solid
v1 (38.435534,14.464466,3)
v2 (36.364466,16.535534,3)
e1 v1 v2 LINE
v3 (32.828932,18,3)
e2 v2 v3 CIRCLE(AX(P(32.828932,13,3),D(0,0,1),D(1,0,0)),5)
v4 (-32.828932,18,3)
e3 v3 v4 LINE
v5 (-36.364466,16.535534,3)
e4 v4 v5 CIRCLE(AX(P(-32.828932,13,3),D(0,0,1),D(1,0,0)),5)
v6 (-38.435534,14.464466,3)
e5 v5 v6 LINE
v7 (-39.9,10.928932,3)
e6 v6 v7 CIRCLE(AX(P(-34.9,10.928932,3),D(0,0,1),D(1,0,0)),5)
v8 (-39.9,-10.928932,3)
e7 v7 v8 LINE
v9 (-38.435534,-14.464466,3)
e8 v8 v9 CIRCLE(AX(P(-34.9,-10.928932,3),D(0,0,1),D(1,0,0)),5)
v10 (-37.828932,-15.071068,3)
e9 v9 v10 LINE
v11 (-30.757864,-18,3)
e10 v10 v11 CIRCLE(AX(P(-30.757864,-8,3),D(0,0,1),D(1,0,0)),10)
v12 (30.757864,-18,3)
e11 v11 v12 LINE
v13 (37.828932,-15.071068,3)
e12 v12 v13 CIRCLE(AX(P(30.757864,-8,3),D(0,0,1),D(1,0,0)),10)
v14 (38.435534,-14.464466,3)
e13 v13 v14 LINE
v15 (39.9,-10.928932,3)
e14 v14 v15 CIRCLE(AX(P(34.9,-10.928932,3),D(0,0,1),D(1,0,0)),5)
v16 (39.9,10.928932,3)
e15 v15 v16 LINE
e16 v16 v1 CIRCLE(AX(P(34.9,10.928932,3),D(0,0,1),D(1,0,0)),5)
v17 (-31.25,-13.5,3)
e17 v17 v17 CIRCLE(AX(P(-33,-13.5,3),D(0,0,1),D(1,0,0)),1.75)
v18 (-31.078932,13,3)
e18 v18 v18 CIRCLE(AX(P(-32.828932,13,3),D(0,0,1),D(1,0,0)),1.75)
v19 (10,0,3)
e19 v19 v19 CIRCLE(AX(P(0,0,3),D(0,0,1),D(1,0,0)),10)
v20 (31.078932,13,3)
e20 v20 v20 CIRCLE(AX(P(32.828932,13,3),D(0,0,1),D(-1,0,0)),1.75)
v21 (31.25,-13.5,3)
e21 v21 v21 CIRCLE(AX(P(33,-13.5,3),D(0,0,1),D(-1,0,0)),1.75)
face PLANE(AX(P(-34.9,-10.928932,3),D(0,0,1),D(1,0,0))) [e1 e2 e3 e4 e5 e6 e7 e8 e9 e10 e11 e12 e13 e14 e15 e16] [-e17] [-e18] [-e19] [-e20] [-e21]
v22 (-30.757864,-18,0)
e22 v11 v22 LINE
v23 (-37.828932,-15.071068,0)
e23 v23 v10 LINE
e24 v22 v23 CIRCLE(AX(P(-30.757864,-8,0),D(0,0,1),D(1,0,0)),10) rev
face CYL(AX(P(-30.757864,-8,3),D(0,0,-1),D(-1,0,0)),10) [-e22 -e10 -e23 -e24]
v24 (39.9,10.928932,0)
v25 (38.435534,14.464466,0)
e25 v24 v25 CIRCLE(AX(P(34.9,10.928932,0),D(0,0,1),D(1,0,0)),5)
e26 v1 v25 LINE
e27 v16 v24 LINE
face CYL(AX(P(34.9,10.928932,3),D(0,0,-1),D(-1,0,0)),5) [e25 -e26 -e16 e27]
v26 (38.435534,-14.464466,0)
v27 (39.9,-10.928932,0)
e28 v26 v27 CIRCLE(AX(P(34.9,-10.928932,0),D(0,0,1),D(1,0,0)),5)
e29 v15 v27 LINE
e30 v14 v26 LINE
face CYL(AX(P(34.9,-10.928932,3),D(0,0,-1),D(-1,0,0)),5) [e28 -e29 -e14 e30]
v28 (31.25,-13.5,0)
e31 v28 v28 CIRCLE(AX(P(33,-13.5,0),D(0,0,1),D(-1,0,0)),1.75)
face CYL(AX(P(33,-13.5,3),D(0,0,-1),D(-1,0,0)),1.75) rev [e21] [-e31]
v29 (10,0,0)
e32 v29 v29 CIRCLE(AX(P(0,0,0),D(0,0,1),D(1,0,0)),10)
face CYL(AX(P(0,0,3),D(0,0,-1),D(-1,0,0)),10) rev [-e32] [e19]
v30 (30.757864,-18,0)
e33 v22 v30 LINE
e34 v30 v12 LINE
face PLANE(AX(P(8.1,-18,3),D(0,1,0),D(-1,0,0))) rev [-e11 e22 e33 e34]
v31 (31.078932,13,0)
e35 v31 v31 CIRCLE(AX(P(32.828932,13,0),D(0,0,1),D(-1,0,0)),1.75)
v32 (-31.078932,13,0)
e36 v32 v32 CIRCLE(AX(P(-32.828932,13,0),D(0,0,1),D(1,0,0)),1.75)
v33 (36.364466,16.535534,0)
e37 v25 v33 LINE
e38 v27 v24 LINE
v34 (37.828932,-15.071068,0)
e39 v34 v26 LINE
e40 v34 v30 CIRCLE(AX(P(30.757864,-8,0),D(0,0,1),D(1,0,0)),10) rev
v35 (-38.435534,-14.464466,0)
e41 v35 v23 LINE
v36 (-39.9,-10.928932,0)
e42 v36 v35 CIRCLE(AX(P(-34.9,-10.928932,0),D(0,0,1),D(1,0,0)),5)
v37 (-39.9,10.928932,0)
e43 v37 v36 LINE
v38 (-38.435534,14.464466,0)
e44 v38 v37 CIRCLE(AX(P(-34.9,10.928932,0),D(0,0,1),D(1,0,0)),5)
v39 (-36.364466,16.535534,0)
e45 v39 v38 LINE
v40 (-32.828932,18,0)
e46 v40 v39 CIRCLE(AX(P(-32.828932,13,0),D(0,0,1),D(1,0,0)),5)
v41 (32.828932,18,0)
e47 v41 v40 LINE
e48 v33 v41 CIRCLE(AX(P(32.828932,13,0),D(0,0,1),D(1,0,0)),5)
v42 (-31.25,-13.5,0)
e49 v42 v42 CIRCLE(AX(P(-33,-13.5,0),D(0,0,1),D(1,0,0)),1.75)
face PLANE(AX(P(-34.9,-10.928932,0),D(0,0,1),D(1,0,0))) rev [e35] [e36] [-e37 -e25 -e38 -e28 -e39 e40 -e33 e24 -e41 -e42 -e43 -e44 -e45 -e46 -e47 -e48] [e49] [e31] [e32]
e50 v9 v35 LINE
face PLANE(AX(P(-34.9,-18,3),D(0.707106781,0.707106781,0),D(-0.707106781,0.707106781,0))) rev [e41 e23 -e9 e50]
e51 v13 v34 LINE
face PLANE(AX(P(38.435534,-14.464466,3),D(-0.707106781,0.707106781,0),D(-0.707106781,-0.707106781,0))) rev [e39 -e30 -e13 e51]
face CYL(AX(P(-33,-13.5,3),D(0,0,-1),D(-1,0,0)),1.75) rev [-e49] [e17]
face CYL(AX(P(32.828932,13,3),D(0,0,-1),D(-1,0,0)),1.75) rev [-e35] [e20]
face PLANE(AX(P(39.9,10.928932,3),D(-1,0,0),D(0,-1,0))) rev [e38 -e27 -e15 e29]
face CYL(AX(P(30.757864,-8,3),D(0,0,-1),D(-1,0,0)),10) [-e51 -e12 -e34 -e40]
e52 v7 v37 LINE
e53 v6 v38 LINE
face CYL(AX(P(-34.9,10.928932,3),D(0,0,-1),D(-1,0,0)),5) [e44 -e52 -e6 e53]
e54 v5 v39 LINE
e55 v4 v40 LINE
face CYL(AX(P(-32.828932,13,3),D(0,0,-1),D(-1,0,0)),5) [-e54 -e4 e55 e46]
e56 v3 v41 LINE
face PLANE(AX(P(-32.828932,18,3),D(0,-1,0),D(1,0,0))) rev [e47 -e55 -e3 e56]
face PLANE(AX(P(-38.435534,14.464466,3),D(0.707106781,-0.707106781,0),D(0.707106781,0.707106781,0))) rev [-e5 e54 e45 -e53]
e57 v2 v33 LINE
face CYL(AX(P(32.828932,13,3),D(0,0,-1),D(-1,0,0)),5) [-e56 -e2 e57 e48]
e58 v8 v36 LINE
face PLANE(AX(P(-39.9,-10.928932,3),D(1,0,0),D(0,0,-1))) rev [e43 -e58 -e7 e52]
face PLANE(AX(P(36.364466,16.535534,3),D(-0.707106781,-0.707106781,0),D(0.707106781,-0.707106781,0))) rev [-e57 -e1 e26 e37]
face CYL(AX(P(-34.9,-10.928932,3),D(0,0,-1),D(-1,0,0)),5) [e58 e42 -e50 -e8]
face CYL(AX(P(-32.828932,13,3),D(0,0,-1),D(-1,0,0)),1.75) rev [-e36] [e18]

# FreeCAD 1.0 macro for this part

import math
import FreeCAD as App
import Part
import Sketcher
from FreeCAD import Vector


def edges_at(feature, points):
    """Names of the edges that pass closest to the given points."""
    edges = feature.Shape.Edges
    near = lambda p: min(range(len(edges)), key=lambda i: edges[i].distToShape(Part.Vertex(*p))[0])
    return sorted({f"Edge{near(p) + 1}" for p in points})

doc = App.newDocument("Part")
body = doc.addObject("PartDesign::Body", "Body")

# Sketch on XY plane
sketch1 = body.newObject("Sketcher::SketchObject", "Sketch")
sketch1.AttachmentSupport = (doc.getObject("XY_Plane"), [""])
sketch1.MapMode = "FlatFace"
sketch1.addGeometry(Part.LineSegment(Vector(-39.9, 10.9, 0), Vector(-39.9, -10.9, 0)), False)
sketch1.addGeometry(Part.ArcOfCircle(Part.Circle(Vector(-34.9, -10.9, 0), Vector(0, 0, 1), 5), math.radians(180), math.radians(225)), False)
sketch1.addGeometry(Part.LineSegment(Vector(-38.4, -14.5, 0), Vector(-34.9, -18, 0)), False)
sketch1.addGeometry(Part.LineSegment(Vector(-34.9, -18, 0), Vector(34.9, -18, 0)), False)
sketch1.addGeometry(Part.LineSegment(Vector(34.9, -18, 0), Vector(38.4, -14.5, 0)), False)
sketch1.addGeometry(Part.ArcOfCircle(Part.Circle(Vector(34.9, -10.9, 0), Vector(0, 0, 1), 5), math.radians(-45), math.radians(0)), False)
sketch1.addGeometry(Part.LineSegment(Vector(39.9, -10.9, 0), Vector(39.9, 10.9, 0)), False)
sketch1.addGeometry(Part.ArcOfCircle(Part.Circle(Vector(34.9, 10.9, 0), Vector(0, 0, 1), 5), math.radians(0), math.radians(45)), False)
sketch1.addGeometry(Part.LineSegment(Vector(38.4, 14.5, 0), Vector(36.4, 16.5, 0)), False)
sketch1.addGeometry(Part.ArcOfCircle(Part.Circle(Vector(32.8, 13, 0), Vector(0, 0, 1), 5), math.radians(45), math.radians(90)), False)
sketch1.addGeometry(Part.LineSegment(Vector(32.8, 18, 0), Vector(-32.8, 18, 0)), False)
sketch1.addGeometry(Part.ArcOfCircle(Part.Circle(Vector(-32.8, 13, 0), Vector(0, 0, 1), 5), math.radians(90), math.radians(135)), False)
sketch1.addGeometry(Part.LineSegment(Vector(-36.4, 16.5, 0), Vector(-38.4, 14.5, 0)), False)
sketch1.addGeometry(Part.ArcOfCircle(Part.Circle(Vector(-34.9, 10.9, 0), Vector(0, 0, 1), 5), math.radians(135), math.radians(180)), False)
sketch1.addGeometry(Part.Circle(Vector(33, -13.5, 0), Vector(0, 0, 1), 1.8), False)
sketch1.addGeometry(Part.Circle(Vector(-33, -13.5, 0), Vector(0, 0, 1), 1.8), False)
sketch1.addGeometry(Part.Circle(Vector(32.8, 13, 0), Vector(0, 0, 1), 1.8), False)
sketch1.addGeometry(Part.Circle(Vector(0, 0, 0), Vector(0, 0, 1), 10), False)
sketch1.addGeometry(Part.Circle(Vector(-32.8, 13, 0), Vector(0, 0, 1), 1.8), False)
sketch1.addConstraint(Sketcher.Constraint("Tangent", 0, 2, 1, 1))
sketch1.addConstraint(Sketcher.Constraint("Tangent", 1, 2, 2, 1))
sketch1.addConstraint(Sketcher.Constraint("Coincident", 2, 2, 3, 1))
sketch1.addConstraint(Sketcher.Constraint("Coincident", 3, 2, 4, 1))
sketch1.addConstraint(Sketcher.Constraint("Tangent", 4, 2, 5, 1))
sketch1.addConstraint(Sketcher.Constraint("Tangent", 5, 2, 6, 1))
sketch1.addConstraint(Sketcher.Constraint("Tangent", 6, 2, 7, 1))
sketch1.addConstraint(Sketcher.Constraint("Tangent", 7, 2, 8, 1))
sketch1.addConstraint(Sketcher.Constraint("Tangent", 8, 2, 9, 1))
sketch1.addConstraint(Sketcher.Constraint("Tangent", 9, 2, 10, 1))
sketch1.addConstraint(Sketcher.Constraint("Tangent", 10, 2, 11, 1))
sketch1.addConstraint(Sketcher.Constraint("Tangent", 11, 2, 12, 1))
sketch1.addConstraint(Sketcher.Constraint("Tangent", 12, 2, 13, 1))
sketch1.addConstraint(Sketcher.Constraint("Tangent", 13, 2, 0, 1))
sketch1.addConstraint(Sketcher.Constraint("Vertical", 0))
sketch1.addConstraint(Sketcher.Constraint("Horizontal", 3))
sketch1.addConstraint(Sketcher.Constraint("Vertical", 6))
sketch1.addConstraint(Sketcher.Constraint("Horizontal", 10))
sketch1.addConstraint(Sketcher.Constraint("Coincident", 17, 3, -1, 1))
sketch1.addConstraint(Sketcher.Constraint("Coincident", 16, 3, 9, 3))
sketch1.addConstraint(Sketcher.Constraint("Coincident", 18, 3, 11, 3))
sketch1.addConstraint(Sketcher.Constraint("Equal", 1, 5))
sketch1.addConstraint(Sketcher.Constraint("Equal", 5, 7))
sketch1.addConstraint(Sketcher.Constraint("Equal", 7, 9))
sketch1.addConstraint(Sketcher.Constraint("Equal", 9, 11))
sketch1.addConstraint(Sketcher.Constraint("Equal", 11, 13))
sketch1.addConstraint(Sketcher.Constraint("Equal", 14, 15))
sketch1.addConstraint(Sketcher.Constraint("Equal", 15, 16))
sketch1.addConstraint(Sketcher.Constraint("Equal", 16, 18))
sketch1.addConstraint(Sketcher.Constraint("Symmetric", 1, 3, 7, 3, -1, 1))
sketch1.addConstraint(Sketcher.Constraint("Symmetric", 4, 2, 12, 2, -1, 1))
sketch1.addConstraint(Sketcher.Constraint("Symmetric", 14, 3, 15, 3, -2))
sketch1.addConstraint(Sketcher.Constraint("Symmetric", 1, 2, 4, 2, -2))
sketch1.addConstraint(Sketcher.Constraint("Perpendicular", 2, 4))
sketch1.addConstraint(Sketcher.Constraint("Perpendicular", 4, 8))
sketch1.addConstraint(Sketcher.Constraint("Vertical", 13, 3, 2, 2))
sketch1.addConstraint(Sketcher.Constraint("Diameter", 17, 20.0))
sketch1.addConstraint(Sketcher.Constraint("Radius", 1, 5.0))
sketch1.addConstraint(Sketcher.Constraint("Diameter", 14, 3.5))
sketch1.addConstraint(Sketcher.Constraint("DistanceX", 3, 1, 3, 2, 69.8))
sketch1.addConstraint(Sketcher.Constraint("DistanceY", -1, 1, 9, 3, 13.0))
sketch1.addConstraint(Sketcher.Constraint("DistanceX", -1, 1, 14, 3, 33.0))
sketch1.addConstraint(Sketcher.Constraint("DistanceY", 2, 2, -1, 1, 18.0))
sketch1.addConstraint(Sketcher.Constraint("DistanceY", 14, 3, -1, 1, 13.5))
pad1 = body.newObject("PartDesign::Pad", "Pad")
pad1.Profile = sketch1
pad1.Length = 3
doc.recompute()

fillet = body.newObject("PartDesign::Fillet", "Fillet")
fillet.Base = (pad1, edges_at(pad1, [(34.9, -18, 1.5), (-34.9, -18, 1.5)]))
fillet.Radius = 10

doc.recompute()
